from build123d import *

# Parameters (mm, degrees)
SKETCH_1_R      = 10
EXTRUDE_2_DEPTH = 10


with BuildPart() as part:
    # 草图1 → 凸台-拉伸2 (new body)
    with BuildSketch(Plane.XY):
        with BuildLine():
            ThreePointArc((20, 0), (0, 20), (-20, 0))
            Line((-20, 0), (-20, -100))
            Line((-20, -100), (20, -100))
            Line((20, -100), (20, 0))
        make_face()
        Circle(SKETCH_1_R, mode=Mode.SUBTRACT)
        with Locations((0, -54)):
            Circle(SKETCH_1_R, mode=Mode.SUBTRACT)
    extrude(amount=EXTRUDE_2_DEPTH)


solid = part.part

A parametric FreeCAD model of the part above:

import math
import FreeCAD as App
import Part
import Sketcher
from FreeCAD import Vector

doc = App.newDocument("Part")
body = doc.addObject("PartDesign::Body", "Body")

# Sketch on XY plane
sketch1 = body.newObject("Sketcher::SketchObject", "Sketch")
sketch1.AttachmentSupport = (doc.getObject("XY_Plane"), [""])
sketch1.MapMode = "FlatFace"
sketch1.addGeometry(Part.ArcOfCircle(Part.Circle(Vector(0, 0, 0), Vector(0, 0, 1), 20), math.radians(0), math.radians(180)), False)
sketch1.addGeometry(Part.LineSegment(Vector(-20, 0, 0), Vector(-20, -100, 0)), False)
sketch1.addGeometry(Part.LineSegment(Vector(-20, -100, 0), Vector(20, -100, 0)), False)
sketch1.addGeometry(Part.LineSegment(Vector(20, -100, 0), Vector(20, 0, 0)), False)
sketch1.addGeometry(Part.Circle(Vector(0, -54, 0), Vector(0, 0, 1), 10), False)
sketch1.addGeometry(Part.Circle(Vector(0, 0, 0), Vector(0, 0, 1), 10), False)
sketch1.addConstraint(Sketcher.Constraint("Tangent", 0, 2, 1, 1))
sketch1.addConstraint(Sketcher.Constraint("Coincident", 1, 2, 2, 1))
sketch1.addConstraint(Sketcher.Constraint("Coincident", 2, 2, 3, 1))
sketch1.addConstraint(Sketcher.Constraint("Tangent", 3, 2, 0, 1))
sketch1.addConstraint(Sketcher.Constraint("Vertical", 1))
sketch1.addConstraint(Sketcher.Constraint("Horizontal", 2))
sketch1.addConstraint(Sketcher.Constraint("Vertical", 3))
sketch1.addConstraint(Sketcher.Constraint("Coincident", 0, 3, -1, 1))
sketch1.addConstraint(Sketcher.Constraint("Coincident", 5, 3, -1, 1))
sketch1.addConstraint(Sketcher.Constraint("Equal", 4, 5))
sketch1.addConstraint(Sketcher.Constraint("PointOnObject", 4, 3, -2))
sketch1.addConstraint(Sketcher.Constraint("Diameter", 4, 20.0))
sketch1.addConstraint(Sketcher.Constraint("Radius", 0, 20.0))
sketch1.addConstraint(Sketcher.Constraint("DistanceY", 1, 2, 1, 1, 100.0))
sketch1.addConstraint(Sketcher.Constraint("DistanceY", 4, 3, -1, 1, 54.0))
pad1 = body.newObject("PartDesign::Pad", "Pad")
pad1.Profile = sketch1
pad1.Length = 10

doc.recompute()
